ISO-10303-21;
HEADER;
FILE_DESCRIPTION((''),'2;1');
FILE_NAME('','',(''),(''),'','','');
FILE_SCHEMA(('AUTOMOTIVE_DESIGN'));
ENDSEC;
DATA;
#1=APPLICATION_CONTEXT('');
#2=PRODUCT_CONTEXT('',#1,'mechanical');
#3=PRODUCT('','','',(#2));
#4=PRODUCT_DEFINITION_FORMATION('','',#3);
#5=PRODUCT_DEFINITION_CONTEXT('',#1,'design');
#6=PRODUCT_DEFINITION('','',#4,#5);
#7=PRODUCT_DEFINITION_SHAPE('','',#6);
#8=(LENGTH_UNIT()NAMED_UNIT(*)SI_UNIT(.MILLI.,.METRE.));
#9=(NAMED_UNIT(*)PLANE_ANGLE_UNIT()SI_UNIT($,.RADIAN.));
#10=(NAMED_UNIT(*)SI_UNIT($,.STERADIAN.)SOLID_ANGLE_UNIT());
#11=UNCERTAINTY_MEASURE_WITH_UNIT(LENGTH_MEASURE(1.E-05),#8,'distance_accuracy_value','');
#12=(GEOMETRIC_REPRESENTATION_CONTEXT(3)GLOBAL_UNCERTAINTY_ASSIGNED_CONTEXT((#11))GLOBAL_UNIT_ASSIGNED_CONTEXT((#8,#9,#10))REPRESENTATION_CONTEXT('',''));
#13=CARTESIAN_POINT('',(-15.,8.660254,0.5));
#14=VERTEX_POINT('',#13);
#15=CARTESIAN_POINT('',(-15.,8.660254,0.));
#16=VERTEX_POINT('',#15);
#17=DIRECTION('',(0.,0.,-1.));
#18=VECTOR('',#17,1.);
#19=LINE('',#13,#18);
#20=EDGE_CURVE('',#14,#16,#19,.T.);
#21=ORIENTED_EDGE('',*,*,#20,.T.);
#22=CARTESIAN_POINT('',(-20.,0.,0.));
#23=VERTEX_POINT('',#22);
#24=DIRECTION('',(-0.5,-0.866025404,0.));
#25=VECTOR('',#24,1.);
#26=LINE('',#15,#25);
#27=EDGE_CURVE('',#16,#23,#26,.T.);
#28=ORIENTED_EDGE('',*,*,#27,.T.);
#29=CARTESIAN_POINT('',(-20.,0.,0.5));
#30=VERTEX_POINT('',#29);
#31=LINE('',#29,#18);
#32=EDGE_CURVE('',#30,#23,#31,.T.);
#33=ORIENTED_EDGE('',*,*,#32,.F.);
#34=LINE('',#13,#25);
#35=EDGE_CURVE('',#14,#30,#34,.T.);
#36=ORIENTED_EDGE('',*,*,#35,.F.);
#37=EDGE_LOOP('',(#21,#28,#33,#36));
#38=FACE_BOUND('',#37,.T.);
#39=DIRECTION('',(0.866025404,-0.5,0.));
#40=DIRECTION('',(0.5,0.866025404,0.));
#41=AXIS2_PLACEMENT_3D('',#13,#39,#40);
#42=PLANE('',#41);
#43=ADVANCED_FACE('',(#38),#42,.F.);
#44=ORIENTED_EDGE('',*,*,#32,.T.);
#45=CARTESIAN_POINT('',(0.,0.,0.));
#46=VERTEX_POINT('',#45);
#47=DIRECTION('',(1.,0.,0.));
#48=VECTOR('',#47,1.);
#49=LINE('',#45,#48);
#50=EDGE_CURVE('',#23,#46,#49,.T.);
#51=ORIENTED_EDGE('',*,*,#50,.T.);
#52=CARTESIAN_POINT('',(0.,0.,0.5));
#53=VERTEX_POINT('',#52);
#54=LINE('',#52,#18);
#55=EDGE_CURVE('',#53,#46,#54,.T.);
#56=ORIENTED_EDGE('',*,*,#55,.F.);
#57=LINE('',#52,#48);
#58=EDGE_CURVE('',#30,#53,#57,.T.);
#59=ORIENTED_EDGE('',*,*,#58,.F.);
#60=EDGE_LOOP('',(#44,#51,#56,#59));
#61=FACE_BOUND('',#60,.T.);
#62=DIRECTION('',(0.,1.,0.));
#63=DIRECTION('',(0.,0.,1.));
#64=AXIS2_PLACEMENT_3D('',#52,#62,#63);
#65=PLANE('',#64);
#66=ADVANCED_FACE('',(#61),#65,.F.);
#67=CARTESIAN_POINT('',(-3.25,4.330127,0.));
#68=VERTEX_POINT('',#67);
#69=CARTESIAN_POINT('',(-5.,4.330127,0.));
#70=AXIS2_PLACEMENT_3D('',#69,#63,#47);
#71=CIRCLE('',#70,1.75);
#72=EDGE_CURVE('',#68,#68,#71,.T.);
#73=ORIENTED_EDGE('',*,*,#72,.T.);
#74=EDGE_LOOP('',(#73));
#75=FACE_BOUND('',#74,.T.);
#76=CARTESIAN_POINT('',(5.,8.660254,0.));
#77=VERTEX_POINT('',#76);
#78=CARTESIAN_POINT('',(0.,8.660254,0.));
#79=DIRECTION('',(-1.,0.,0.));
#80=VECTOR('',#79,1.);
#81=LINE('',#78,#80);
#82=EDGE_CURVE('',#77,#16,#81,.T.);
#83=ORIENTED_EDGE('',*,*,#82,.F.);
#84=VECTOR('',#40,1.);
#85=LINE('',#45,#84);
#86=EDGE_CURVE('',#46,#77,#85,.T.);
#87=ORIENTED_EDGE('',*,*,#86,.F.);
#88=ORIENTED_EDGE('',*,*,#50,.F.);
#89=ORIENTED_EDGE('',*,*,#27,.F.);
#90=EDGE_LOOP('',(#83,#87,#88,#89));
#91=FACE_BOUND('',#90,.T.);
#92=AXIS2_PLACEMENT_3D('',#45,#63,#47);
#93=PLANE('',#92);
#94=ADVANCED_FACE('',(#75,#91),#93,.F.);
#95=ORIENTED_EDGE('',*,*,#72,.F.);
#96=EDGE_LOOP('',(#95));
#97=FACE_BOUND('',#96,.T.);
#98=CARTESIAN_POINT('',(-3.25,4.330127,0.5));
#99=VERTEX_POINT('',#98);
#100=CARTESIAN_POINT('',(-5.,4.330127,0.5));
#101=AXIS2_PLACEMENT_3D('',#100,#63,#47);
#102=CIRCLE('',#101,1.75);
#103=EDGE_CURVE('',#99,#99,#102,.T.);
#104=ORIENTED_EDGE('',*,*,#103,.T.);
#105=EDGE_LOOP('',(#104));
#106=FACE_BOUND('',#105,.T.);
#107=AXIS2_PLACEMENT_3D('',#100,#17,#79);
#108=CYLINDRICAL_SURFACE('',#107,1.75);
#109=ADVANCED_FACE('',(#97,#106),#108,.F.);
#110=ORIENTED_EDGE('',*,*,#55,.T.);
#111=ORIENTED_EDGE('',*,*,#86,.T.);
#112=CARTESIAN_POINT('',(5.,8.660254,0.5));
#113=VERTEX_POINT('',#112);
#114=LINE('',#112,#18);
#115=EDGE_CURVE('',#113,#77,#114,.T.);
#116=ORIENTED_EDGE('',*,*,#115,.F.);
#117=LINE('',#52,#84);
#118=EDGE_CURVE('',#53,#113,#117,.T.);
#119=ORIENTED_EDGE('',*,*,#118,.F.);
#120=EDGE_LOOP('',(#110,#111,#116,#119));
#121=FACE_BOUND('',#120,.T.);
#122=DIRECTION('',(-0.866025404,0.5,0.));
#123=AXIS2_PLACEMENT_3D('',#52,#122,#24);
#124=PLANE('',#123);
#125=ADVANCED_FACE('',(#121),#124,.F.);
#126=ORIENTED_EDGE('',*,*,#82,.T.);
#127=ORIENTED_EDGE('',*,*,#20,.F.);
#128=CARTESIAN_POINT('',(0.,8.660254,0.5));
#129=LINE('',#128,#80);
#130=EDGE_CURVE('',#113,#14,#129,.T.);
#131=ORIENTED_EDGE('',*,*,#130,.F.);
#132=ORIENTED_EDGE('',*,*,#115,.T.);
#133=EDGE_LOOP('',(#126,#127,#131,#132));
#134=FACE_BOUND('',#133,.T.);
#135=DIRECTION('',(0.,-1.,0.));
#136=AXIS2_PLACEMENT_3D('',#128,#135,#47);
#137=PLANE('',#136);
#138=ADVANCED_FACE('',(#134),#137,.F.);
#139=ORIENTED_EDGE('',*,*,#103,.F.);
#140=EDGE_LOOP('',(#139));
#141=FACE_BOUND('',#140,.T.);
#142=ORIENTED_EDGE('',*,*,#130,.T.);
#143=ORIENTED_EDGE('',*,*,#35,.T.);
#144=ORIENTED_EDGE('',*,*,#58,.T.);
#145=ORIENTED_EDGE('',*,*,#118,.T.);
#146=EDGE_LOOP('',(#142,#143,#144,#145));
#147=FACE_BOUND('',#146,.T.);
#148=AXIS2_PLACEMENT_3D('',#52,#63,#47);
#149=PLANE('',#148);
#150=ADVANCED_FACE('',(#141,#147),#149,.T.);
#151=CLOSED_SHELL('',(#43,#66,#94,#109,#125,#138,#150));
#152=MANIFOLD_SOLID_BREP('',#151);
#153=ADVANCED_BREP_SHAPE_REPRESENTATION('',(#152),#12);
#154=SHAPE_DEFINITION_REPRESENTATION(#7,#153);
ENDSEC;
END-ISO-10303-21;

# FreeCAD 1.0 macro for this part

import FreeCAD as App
import Part
import Sketcher
from FreeCAD import Vector
Q = App.Units.Quantity

doc = App.newDocument("Part")
body = doc.addObject("PartDesign::Body", "Body")

sketch1 = body.newObject("Sketcher::SketchObject", "Sketch")
sketch1.AttachmentSupport = (doc.getObject("XY_Plane"), [""])
sketch1.MapMode = "FlatFace"
sketch1.addGeometry(Part.LineSegment(Vector(0, 0, 0), Vector(5, 8.7, 0)), False)
sketch1.addGeometry(Part.LineSegment(Vector(5, 8.7, 0), Vector(-15, 8.7, 0)), False)
sketch1.addGeometry(Part.LineSegment(Vector(-15, 8.7, 0), Vector(-20, 0, 0)), False)
sketch1.addGeometry(Part.LineSegment(Vector(-20, 0, 0), Vector(0, 0, 0)), False)
sketch1.addGeometry(Part.Circle(Vector(-5, 4.3, 0), Vector(0, 0, 1), 1.8), False)
sketch1.addConstraint(Sketcher.Constraint("Coincident", 0, 2, 1, 1))
sketch1.addConstraint(Sketcher.Constraint("Coincident", 1, 2, 2, 1))
sketch1.addConstraint(Sketcher.Constraint("Coincident", 2, 2, 3, 1))
sketch1.addConstraint(Sketcher.Constraint("Coincident", 3, 2, 0, 1))
sketch1.addConstraint(Sketcher.Constraint("Horizontal", 1))
sketch1.addConstraint(Sketcher.Constraint("Horizontal", 3))
sketch1.addConstraint(Sketcher.Constraint("Coincident", 3, 2, -1, 1))
sketch1.addConstraint(Sketcher.Constraint("Parallel", 0, 2))
sketch1.addConstraint(Sketcher.Constraint("Diameter", 4, 3.5))
sketch1.addConstraint(Sketcher.Constraint("DistanceX", 1, 2, 1, 1, 20.0))
sketch1.addConstraint(Sketcher.Constraint("Angle", 0, Q("60 deg")))
sketch1.addConstraint(Sketcher.Constraint("Distance", 0, 10.0))
sketch1.addConstraint(Sketcher.Constraint("DistanceX", 4, 3, -1, 1, 5.0))
sketch1.addConstraint(Sketcher.Constraint("DistanceY", -1, 1, 4, 3, 4.330127))
pad1 = body.newObject("PartDesign::Pad", "Pad")
pad1.Profile = sketch1
pad1.Length = 0.5

doc.recompute()
